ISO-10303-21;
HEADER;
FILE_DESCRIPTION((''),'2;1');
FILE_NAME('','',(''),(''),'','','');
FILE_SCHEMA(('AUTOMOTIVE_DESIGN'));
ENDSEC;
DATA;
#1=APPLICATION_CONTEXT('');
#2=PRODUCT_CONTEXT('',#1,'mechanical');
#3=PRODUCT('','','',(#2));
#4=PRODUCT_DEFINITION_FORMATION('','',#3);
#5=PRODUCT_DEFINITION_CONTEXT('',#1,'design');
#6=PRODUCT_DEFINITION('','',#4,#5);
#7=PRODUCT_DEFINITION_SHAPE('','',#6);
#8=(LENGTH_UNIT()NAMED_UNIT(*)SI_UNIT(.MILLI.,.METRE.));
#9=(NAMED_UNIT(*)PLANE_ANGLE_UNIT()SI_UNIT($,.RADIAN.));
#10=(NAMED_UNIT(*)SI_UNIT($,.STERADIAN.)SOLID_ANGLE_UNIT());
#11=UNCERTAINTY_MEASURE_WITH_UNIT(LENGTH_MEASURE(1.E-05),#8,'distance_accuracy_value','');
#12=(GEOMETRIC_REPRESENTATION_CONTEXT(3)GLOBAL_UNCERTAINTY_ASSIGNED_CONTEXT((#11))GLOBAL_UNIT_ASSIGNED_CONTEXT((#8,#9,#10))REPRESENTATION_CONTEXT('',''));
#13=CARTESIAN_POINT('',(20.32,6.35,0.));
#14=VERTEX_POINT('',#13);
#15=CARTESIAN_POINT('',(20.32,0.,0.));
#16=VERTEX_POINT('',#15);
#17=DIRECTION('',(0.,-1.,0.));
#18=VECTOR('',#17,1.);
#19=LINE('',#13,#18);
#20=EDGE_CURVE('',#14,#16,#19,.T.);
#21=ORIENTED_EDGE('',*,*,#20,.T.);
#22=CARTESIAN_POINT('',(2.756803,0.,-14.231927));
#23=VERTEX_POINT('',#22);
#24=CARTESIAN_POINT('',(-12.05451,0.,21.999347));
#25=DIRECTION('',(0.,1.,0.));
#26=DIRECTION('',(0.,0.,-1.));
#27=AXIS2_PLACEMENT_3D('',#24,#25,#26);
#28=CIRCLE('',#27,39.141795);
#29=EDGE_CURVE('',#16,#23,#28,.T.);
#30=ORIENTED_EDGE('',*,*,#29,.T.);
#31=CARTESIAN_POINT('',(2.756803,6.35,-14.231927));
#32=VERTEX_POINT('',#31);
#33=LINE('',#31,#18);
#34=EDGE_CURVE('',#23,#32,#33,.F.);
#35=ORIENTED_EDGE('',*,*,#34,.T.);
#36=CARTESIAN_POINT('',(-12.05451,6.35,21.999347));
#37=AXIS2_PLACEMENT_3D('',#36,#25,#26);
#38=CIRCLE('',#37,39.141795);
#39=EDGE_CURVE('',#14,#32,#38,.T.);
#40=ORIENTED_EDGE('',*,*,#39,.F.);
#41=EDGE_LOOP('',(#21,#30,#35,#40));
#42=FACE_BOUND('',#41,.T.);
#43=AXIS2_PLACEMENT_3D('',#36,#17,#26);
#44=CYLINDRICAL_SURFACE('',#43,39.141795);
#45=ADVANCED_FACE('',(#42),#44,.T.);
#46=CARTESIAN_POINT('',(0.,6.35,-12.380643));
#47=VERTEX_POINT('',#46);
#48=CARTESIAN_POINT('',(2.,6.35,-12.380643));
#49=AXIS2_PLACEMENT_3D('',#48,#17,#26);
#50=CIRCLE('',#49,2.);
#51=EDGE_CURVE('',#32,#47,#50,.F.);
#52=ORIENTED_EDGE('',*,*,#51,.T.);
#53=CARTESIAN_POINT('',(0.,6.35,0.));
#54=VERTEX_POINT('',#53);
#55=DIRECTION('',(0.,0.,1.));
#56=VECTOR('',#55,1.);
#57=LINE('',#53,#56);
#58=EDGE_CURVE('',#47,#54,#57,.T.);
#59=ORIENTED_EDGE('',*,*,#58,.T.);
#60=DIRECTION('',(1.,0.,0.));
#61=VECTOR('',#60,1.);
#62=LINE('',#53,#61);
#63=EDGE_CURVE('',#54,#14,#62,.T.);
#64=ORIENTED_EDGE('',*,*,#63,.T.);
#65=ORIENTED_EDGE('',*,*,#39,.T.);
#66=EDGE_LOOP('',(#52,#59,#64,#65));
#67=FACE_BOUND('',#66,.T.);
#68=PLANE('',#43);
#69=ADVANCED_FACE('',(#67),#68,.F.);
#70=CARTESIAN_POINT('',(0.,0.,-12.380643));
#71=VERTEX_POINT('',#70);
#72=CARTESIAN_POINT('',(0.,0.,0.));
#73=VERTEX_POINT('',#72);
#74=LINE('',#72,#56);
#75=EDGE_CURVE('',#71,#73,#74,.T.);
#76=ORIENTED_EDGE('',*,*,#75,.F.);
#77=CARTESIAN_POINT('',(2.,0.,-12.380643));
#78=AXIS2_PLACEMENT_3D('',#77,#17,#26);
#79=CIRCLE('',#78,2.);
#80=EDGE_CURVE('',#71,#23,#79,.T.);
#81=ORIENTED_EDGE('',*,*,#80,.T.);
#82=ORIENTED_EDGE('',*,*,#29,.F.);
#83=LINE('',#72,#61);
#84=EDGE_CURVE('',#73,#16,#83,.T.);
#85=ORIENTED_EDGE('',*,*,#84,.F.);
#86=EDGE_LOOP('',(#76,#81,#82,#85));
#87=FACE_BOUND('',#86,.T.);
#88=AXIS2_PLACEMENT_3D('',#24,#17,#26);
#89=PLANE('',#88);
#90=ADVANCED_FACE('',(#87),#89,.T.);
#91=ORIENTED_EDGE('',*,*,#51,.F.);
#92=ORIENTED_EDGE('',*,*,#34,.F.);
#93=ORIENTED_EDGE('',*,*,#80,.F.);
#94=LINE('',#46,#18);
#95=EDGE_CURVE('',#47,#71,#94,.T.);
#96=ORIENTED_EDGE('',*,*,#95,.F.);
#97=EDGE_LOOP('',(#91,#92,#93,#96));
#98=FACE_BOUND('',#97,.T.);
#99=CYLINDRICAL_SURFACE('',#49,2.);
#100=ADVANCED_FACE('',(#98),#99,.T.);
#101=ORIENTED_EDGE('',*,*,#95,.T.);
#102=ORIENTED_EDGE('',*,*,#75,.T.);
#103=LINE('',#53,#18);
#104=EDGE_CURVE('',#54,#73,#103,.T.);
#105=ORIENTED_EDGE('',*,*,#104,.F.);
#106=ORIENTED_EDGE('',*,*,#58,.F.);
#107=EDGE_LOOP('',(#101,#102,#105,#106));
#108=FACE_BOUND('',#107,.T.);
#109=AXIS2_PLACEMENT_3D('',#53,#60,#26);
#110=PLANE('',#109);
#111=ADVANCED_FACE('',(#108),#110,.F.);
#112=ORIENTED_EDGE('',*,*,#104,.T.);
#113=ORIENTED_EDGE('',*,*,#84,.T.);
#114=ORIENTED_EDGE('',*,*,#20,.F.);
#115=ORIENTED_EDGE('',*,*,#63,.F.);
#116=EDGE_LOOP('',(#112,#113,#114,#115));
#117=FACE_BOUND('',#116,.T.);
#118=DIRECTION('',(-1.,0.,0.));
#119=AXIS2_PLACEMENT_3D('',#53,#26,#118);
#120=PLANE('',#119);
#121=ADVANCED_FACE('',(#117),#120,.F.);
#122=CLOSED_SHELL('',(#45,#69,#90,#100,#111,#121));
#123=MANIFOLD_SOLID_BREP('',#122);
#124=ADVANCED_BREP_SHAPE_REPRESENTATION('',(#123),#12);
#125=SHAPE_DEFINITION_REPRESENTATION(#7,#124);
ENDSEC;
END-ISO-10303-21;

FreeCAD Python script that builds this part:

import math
import FreeCAD as App
import Part
import Sketcher
Q = App.Units.Quantity


def edges_at(feature, points):
    """Names of the edges that pass closest to the given points."""
    edges = feature.Shape.Edges
    near = lambda p: min(range(len(edges)), key=lambda i: edges[i].distToShape(Part.Vertex(*p))[0])
    return sorted({f"Edge{near(p) + 1}" for p in points})

doc = App.newDocument("Part")
body = doc.addObject("PartDesign::Body", "Body")

# Sketch on XZ plane
sketch1 = doc.addObject("Sketcher::SketchObject", "Sketch")
body.addObject(sketch1)
sketch1.AttachmentSupport = (doc.XZ_Plane, [""])
sketch1.MapMode = "FlatFace"
sketch1.addGeometry([
    Part.LineSegment(App.Vector(0, -15.24, 0), App.Vector(0, 0, 0)),
    Part.LineSegment(App.Vector(0, 0, 0), App.Vector(20.32, 0, 0)),
    Part.ArcOfCircle(Part.Circle(App.Vector(-12.05451, 21.999347, 0), App.Vector(0, 0, 1), 39.141795), math.radians(-72.063047), math.radians(-34.197158)),
], False)
sketch1.addConstraint([
    Sketcher.Constraint("Coincident", 0, 2, 1, 1),
    Sketcher.Constraint("Coincident", 1, 2, 2, 2),
    Sketcher.Constraint("Coincident", 2, 1, 0, 1),
    Sketcher.Constraint("Vertical", 0),
    Sketcher.Constraint("Horizontal", 1),
    Sketcher.Constraint("Coincident", 0, 2, -1, 1),
    Sketcher.Constraint("DistanceX", 1, 1, 1, 2, Q("0.8 in")),
    Sketcher.Constraint("DistanceY", 0, 1, 0, 2, Q("0.6 in")),
    Sketcher.Constraint("Radius", 2, 39.141795),
])
pad1 = doc.addObject("PartDesign::Pad", "Pad")
body.addObject(pad1)
pad1.Profile = sketch1
pad1.Length = Q("0.25 in")
pad1.Reversed = True
doc.recompute()

fillet = doc.addObject("PartDesign::Fillet", "Fillet")
body.addObject(fillet)
fillet.Base = (pad1, edges_at(pad1, [(0, 3.175, -15.24)]))
fillet.Radius = 2

doc.recompute()
